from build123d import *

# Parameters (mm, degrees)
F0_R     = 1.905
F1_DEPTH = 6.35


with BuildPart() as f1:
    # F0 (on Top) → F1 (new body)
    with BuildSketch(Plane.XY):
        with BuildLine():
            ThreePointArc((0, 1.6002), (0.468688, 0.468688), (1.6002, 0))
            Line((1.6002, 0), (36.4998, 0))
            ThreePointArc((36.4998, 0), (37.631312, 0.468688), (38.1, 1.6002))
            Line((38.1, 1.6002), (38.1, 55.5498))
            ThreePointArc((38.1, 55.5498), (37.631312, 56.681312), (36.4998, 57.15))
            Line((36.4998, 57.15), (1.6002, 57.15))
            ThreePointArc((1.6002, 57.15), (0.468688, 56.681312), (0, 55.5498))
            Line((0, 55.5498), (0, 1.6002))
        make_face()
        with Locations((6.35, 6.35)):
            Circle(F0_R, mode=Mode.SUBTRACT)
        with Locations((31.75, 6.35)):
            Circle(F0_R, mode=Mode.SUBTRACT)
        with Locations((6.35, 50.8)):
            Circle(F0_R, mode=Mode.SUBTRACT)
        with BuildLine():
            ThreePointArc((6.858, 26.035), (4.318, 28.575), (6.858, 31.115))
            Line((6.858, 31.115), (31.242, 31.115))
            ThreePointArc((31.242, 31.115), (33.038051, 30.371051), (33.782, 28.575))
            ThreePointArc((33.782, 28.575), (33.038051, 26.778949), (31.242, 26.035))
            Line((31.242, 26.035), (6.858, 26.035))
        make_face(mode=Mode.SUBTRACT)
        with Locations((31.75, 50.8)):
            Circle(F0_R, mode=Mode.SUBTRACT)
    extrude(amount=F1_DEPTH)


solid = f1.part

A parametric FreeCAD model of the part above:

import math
import FreeCAD as App
import Part
import Sketcher
Q = App.Units.Quantity

doc = App.newDocument("Part")
body = doc.addObject("PartDesign::Body", "Body")

sketch1 = body.newObject("Sketcher::SketchObject", "Sketch")
sketch1.AttachmentSupport = (doc.getObject("XY_Plane"), [""])
sketch1.MapMode = "FlatFace"
sketch1.addGeometry([
    Part.ArcOfCircle(Part.Circle(App.Vector(1.6, 1.6, 0), App.Vector(0, 0, 1), 1.6), math.radians(-180), math.radians(-90)),
    Part.LineSegment(App.Vector(1.6, 0, 0), App.Vector(36.5, 0, 0)),
    Part.ArcOfCircle(Part.Circle(App.Vector(36.5, 1.6, 0), App.Vector(0, 0, 1), 1.6), math.radians(-90), math.radians(0)),
    Part.LineSegment(App.Vector(38.1, 1.6, 0), App.Vector(38.1, 55.5, 0)),
    Part.ArcOfCircle(Part.Circle(App.Vector(36.5, 55.5, 0), App.Vector(0, 0, 1), 1.6), math.radians(0), math.radians(90)),
    Part.LineSegment(App.Vector(36.5, 57.1, 0), App.Vector(1.6, 57.1, 0)),
    Part.ArcOfCircle(Part.Circle(App.Vector(1.6, 55.5, 0), App.Vector(0, 0, 1), 1.6), math.radians(90), math.radians(180)),
    Part.LineSegment(App.Vector(0, 55.5, 0), App.Vector(0, 1.6, 0)),
    Part.Circle(App.Vector(6.3, 6.3, 0), App.Vector(0, 0, 1), 1.9),
    Part.Circle(App.Vector(31.8, 6.3, 0), App.Vector(0, 0, 1), 1.9),
    Part.LineSegment(App.Vector(31.2, 26, 0), App.Vector(6.9, 26, 0)),
    Part.ArcOfCircle(Part.Circle(App.Vector(6.9, 28.6, 0), App.Vector(0, 0, 1), 2.5), math.radians(90), math.radians(270)),
    Part.LineSegment(App.Vector(6.9, 31.1, 0), App.Vector(31.2, 31.1, 0)),
    Part.ArcOfCircle(Part.Circle(App.Vector(31.2, 28.6, 0), App.Vector(0, 0, 1), 2.5), math.radians(0), math.radians(90)),
    Part.ArcOfCircle(Part.Circle(App.Vector(31.2, 28.6, 0), App.Vector(0, 0, 1), 2.5), math.radians(-90), math.radians(0)),
    Part.Circle(App.Vector(6.3, 50.8, 0), App.Vector(0, 0, 1), 1.9),
    Part.Circle(App.Vector(31.8, 50.8, 0), App.Vector(0, 0, 1), 1.9),
], False)
sketch1.addConstraint([
    Sketcher.Constraint("Tangent", 0, 2, 1, 1),
    Sketcher.Constraint("Tangent", 1, 2, 2, 1),
    Sketcher.Constraint("Tangent", 2, 2, 3, 1),
    Sketcher.Constraint("Tangent", 3, 2, 4, 1),
    Sketcher.Constraint("Tangent", 4, 2, 5, 1),
    Sketcher.Constraint("Tangent", 5, 2, 6, 1),
    Sketcher.Constraint("Tangent", 6, 2, 7, 1),
    Sketcher.Constraint("Tangent", 7, 2, 0, 1),
    Sketcher.Constraint("Tangent", 10, 2, 11, 2),
    Sketcher.Constraint("Tangent", 11, 1, 12, 1),
    Sketcher.Constraint("Tangent", 12, 2, 13, 2),
    Sketcher.Constraint("Tangent", 13, 1, 14, 2),
    Sketcher.Constraint("Tangent", 14, 1, 10, 1),
    Sketcher.Constraint("Horizontal", 1),
    Sketcher.Constraint("Vertical", 3),
    Sketcher.Constraint("Horizontal", 5),
    Sketcher.Constraint("Vertical", 7),
    Sketcher.Constraint("Horizontal", 10),
    Sketcher.Constraint("Horizontal", 12),
    Sketcher.Constraint("Equal", 0, 2),
    Sketcher.Constraint("Equal", 2, 4),
    Sketcher.Constraint("Equal", 4, 6),
    Sketcher.Constraint("Equal", 8, 9),
    Sketcher.Constraint("Equal", 11, 13),
    Sketcher.Constraint("Equal", 9, 15),
    Sketcher.Constraint("Equal", 15, 16),
    Sketcher.Constraint("PointOnObject", 0, 2, -1),
    Sketcher.Constraint("PointOnObject", 6, 2, -2),
    Sketcher.Constraint("Horizontal", 8, 3, 9, 3),
    Sketcher.Constraint("Horizontal", 15, 3, 16, 3),
    Sketcher.Constraint("Horizontal", 14, 3, 13, 1),
    Sketcher.Constraint("Vertical", 8, 3, 15, 3),
    Sketcher.Constraint("Vertical", 9, 3, 16, 3),
    Sketcher.Constraint("Radius", 11, Q("0.1 in")),
    Sketcher.Constraint("Diameter", 8, Q("0.15 in")),
    Sketcher.Constraint("DistanceY", -1, 1, 15, 3, Q("2 in")),
    Sketcher.Constraint("Radius", 0, Q("0.063 in")),
    Sketcher.Constraint("DistanceX", 8, 3, 9, 3, Q("1 in")),
    Sketcher.Constraint("DistanceX", 10, 2, 10, 1, Q("0.96 in")),
    Sketcher.Constraint("DistanceX", -1, 1, 2, 2, Q("1.5 in")),
    Sketcher.Constraint("DistanceY", 3, 1, 3, 2, Q("2.124 in")),
    Sketcher.Constraint("DistanceX", -1, 1, 8, 3, Q("0.25 in")),
    Sketcher.Constraint("DistanceY", -1, 1, 8, 3, Q("0.25 in")),
    Sketcher.Constraint("DistanceX", -1, 1, 11, 3, Q("0.27 in")),
    Sketcher.Constraint("DistanceY", -1, 1, 11, 3, Q("1.125 in")),
])
pad1 = body.newObject("PartDesign::Pad", "Pad")
pad1.Profile = sketch1
pad1.Length = Q("0.25 in")

doc.recompute()
